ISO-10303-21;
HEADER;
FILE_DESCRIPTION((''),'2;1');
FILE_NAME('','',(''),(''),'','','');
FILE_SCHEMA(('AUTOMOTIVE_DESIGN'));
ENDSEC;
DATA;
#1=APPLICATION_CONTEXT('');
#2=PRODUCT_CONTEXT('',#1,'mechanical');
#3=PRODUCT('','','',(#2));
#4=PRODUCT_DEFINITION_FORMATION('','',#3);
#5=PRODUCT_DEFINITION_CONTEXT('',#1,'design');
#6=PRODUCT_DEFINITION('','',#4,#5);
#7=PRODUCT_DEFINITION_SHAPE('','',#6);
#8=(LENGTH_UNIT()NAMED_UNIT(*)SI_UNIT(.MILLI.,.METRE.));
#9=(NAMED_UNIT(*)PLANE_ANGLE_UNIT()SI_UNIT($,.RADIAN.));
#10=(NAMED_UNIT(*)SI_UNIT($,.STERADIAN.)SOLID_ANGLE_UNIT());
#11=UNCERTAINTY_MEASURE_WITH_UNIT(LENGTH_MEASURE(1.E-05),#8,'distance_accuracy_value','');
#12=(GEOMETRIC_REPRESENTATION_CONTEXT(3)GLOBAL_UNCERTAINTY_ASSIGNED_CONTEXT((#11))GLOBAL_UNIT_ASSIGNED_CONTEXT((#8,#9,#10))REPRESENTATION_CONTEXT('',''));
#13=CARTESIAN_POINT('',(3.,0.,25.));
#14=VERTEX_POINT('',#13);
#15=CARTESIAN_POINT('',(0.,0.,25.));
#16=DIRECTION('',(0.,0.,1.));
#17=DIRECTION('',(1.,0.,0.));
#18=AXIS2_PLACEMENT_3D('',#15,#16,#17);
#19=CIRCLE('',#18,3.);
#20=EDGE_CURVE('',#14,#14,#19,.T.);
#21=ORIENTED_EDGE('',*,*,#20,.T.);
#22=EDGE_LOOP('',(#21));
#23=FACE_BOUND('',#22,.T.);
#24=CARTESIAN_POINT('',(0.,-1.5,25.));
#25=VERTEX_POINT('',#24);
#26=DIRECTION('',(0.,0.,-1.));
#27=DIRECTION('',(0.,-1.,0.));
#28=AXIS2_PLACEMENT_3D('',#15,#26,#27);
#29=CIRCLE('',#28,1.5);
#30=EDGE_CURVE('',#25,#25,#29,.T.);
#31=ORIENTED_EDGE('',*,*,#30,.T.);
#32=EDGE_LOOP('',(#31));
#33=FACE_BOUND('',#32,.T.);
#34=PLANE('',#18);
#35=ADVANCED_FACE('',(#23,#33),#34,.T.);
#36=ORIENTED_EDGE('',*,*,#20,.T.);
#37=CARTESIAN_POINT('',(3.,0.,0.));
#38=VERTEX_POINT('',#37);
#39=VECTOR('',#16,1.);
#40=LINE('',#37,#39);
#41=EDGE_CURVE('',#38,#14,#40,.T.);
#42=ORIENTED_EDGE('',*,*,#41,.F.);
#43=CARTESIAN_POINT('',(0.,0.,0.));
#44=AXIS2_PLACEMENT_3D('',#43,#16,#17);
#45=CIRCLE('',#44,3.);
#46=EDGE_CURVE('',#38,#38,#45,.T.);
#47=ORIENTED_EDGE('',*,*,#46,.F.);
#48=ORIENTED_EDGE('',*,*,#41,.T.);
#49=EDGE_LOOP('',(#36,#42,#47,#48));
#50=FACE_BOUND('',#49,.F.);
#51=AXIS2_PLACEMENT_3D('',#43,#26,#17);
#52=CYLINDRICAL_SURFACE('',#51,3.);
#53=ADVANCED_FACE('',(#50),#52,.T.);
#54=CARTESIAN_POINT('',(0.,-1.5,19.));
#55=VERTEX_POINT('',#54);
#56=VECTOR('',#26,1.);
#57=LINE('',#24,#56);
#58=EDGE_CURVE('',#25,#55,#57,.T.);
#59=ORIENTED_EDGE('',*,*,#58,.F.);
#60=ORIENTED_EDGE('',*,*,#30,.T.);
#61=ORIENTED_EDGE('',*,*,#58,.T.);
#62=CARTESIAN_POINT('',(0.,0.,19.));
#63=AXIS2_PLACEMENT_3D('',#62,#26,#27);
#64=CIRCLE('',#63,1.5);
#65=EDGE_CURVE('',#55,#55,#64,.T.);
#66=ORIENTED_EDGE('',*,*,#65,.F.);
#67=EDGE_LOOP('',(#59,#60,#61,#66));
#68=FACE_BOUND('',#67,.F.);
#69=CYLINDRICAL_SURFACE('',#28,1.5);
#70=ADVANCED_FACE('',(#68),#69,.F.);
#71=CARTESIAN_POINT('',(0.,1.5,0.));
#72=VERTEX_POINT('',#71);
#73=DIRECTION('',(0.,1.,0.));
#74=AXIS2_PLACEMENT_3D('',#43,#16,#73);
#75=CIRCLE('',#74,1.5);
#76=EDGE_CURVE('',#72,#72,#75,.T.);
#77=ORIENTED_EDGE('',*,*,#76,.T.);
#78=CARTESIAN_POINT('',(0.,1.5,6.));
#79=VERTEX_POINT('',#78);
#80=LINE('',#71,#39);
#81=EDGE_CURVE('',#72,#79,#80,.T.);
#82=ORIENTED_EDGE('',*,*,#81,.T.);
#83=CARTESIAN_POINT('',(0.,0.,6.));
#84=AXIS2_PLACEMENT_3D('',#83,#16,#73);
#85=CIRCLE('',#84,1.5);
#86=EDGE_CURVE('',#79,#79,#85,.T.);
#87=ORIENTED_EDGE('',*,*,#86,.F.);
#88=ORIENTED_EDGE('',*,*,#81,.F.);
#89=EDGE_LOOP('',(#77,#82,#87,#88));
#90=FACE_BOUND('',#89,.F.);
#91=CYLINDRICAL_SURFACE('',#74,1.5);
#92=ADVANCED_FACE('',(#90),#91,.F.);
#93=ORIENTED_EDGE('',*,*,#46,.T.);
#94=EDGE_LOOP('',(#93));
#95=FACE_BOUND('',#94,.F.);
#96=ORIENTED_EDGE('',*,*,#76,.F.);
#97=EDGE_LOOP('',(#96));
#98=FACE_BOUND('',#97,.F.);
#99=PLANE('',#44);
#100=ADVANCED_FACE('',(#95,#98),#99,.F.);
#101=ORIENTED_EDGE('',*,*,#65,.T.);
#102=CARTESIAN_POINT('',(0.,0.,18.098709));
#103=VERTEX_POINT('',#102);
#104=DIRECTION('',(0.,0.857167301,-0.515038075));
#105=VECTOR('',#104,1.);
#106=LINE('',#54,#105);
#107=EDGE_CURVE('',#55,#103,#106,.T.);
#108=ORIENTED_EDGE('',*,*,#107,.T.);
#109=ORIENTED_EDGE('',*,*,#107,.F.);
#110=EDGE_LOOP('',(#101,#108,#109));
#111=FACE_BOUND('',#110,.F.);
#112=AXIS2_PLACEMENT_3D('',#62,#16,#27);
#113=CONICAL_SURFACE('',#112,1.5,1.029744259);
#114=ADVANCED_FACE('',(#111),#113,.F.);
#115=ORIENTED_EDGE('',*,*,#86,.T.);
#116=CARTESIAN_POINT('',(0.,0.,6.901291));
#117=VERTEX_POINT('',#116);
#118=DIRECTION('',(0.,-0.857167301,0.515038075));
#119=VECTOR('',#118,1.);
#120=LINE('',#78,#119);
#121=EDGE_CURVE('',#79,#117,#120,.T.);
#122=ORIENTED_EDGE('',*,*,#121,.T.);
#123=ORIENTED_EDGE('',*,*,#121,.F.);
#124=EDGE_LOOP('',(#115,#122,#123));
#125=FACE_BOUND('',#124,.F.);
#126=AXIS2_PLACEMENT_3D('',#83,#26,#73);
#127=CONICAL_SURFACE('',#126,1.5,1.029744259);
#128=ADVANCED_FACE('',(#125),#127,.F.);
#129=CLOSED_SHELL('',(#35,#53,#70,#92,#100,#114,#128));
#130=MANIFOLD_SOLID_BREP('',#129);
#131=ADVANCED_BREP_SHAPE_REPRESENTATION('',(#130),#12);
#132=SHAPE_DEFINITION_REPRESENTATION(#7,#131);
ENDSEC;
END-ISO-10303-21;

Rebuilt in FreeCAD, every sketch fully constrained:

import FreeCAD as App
import Part
import Sketcher
Q = App.Units.Quantity

doc = App.newDocument("Part")
params = doc.addObject("Spreadsheet::Sheet", "Params")
for row, (alias, value) in enumerate([
    ("sketch1_diameter", "6 mm"),
    ("pad1_length", "25 mm"),
    ("sketch2_diameter", "3 mm"),
    ("hole_diameter", "3 mm"),
    ("hole_depth", "6 mm"),
    ("sketch3_diameter", "3 mm"),
    ("hole2_diameter", "3 mm"),
    ("hole2_depth", "6 mm"),
], start=1):
    params.set(f"A{row}", alias)
    params.set(f"B{row}", "=" + value)
    params.setAlias(f"B{row}", alias)

body = doc.addObject("PartDesign::Body", "Body")

sketch1 = body.newObject("Sketcher::SketchObject", "Sketch")
sketch1.AttachmentSupport = (doc.getObject("XY_Plane"), [""])
sketch1.MapMode = "FlatFace"
sketch1.addGeometry(Part.Circle(App.Vector(0, 0, 0), App.Vector(0, 0, 1), 3), False)
sketch1.addConstraint([
    Sketcher.Constraint("Coincident", 0, 3, -1, 1),
    Sketcher.Constraint("Diameter", 0, Q("6 mm")),
])
sketch1.setExpression("Constraints[1]", "Params.sketch1_diameter")
pad1 = body.newObject("PartDesign::Pad", "Pad")
pad1.Profile = sketch1
pad1.setExpression("Length", "Params.pad1_length")

sketch2 = body.newObject("Sketcher::SketchObject", "Sketch001")
sketch2.AttachmentSupport = (doc.getObject("XY_Plane"), [""])
sketch2.MapMode = "FlatFace"
sketch2.addGeometry(Part.Circle(App.Vector(0, 0, 0), App.Vector(0, 0, 1), 1.5), False)
sketch2.addConstraint([
    Sketcher.Constraint("Coincident", 0, 3, -1, 1),
    Sketcher.Constraint("Diameter", 0, Q("3 mm")),
])
sketch2.setExpression("Constraints[1]", "Params.sketch2_diameter")
doc.recompute()
hole = body.newObject("PartDesign::Hole", "Hole")
hole.Profile = sketch2
hole.ThreadType = "None"
hole.setExpression("Diameter", "Params.hole_diameter")
hole.DepthType = "Dimension"
hole.setExpression("Depth", "Params.hole_depth")
hole.DrillPoint = "Angled"
hole.DrillPointAngle = 118
hole.Reversed = True

sketch3 = body.newObject("Sketcher::SketchObject", "Sketch002")
sketch3.AttachmentSupport = (doc.getObject("XY_Plane"), [""])
sketch3.MapMode = "FlatFace"
sketch3.AttachmentOffset = App.Placement(App.Vector(0, 0, 25), App.Rotation())
sketch3.addGeometry(Part.Circle(App.Vector(0, 0, 0), App.Vector(0, 0, 1), 1.5), False)
sketch3.addConstraint([
    Sketcher.Constraint("Coincident", 0, 3, -1, 1),
    Sketcher.Constraint("Diameter", 0, Q("3 mm")),
])
sketch3.setExpression("Constraints[1]", "Params.sketch3_diameter")
doc.recompute()
hole2 = body.newObject("PartDesign::Hole", "Hole001")
hole2.Profile = sketch3
hole2.ThreadType = "None"
hole2.setExpression("Diameter", "Params.hole2_diameter")
hole2.DepthType = "Dimension"
hole2.setExpression("Depth", "Params.hole2_depth")
hole2.DrillPoint = "Angled"
hole2.DrillPointAngle = 118

doc.recompute()
